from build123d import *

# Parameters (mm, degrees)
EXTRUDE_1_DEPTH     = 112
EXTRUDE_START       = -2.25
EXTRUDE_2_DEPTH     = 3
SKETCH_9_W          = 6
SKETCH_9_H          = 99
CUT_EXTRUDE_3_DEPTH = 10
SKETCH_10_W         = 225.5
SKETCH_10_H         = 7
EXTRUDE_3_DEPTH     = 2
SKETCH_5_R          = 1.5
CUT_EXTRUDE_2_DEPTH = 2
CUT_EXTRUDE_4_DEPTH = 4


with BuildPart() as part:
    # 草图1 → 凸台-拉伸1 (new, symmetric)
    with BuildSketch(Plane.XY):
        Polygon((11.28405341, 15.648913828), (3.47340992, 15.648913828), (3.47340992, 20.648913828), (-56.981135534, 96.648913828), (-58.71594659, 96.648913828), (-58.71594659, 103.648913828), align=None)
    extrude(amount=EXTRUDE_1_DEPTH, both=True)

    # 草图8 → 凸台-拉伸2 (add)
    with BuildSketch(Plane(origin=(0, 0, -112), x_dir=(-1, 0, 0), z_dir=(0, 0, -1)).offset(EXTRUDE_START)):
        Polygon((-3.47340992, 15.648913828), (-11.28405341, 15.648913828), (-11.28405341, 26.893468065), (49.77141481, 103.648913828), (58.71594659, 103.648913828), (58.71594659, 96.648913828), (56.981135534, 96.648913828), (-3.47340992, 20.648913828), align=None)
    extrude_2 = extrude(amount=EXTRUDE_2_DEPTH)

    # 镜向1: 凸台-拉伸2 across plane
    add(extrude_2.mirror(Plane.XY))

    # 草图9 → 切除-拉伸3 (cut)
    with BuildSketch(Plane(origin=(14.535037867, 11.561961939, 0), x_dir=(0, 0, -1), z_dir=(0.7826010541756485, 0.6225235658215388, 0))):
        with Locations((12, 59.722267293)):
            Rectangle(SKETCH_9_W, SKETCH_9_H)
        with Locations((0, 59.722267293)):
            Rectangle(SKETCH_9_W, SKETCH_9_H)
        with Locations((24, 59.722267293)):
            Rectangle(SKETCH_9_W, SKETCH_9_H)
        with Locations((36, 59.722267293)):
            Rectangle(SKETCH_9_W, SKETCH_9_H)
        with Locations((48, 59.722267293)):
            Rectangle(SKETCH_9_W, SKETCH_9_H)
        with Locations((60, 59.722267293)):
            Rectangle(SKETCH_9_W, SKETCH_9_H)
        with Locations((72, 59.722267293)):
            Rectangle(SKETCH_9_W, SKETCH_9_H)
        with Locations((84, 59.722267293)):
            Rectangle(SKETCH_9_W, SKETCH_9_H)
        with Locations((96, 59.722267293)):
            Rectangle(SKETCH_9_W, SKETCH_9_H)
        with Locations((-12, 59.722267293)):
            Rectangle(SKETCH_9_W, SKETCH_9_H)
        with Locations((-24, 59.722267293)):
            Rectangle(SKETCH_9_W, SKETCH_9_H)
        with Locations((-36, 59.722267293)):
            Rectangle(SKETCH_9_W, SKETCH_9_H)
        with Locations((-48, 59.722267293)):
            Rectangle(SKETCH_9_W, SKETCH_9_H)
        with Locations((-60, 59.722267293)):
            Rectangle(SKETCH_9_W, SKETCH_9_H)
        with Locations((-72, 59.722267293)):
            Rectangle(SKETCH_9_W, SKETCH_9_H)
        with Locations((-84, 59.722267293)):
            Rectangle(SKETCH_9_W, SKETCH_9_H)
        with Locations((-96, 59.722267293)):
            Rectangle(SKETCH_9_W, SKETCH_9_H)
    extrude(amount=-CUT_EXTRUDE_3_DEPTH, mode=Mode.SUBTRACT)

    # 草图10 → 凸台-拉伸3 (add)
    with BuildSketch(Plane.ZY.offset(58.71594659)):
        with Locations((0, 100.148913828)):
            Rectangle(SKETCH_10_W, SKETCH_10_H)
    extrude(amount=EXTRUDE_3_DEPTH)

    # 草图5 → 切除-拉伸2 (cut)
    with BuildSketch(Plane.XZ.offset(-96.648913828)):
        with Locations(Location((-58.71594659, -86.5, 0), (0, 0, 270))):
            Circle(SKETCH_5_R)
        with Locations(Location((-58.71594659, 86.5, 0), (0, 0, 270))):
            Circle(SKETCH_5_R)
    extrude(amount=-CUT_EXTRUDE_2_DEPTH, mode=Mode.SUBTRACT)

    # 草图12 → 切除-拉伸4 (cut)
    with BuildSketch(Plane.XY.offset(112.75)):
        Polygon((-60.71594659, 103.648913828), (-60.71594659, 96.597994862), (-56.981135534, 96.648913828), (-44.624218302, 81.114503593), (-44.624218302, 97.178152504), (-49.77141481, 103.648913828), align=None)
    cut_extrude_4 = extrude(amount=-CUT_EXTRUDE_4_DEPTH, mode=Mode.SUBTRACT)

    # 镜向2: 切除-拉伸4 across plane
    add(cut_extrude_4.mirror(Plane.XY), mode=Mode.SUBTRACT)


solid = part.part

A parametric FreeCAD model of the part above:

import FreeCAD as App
import Part
import Sketcher


def add_polygon(sketch, points):
    """Adds a closed chain of lines whose ends are joined by coincident constraints."""
    first, n = sketch.GeometryCount, len(points)
    for a, b in zip(points, points[1:] + points[:1]):
        sketch.addGeometry(Part.LineSegment(App.Vector(*a, 0), App.Vector(*b, 0)), False)
    for i in range(n):
        sketch.addConstraint(Sketcher.Constraint("Coincident", first + i, 2, first + (i + 1) % n, 1))

doc = App.newDocument("Part")
body = doc.addObject("PartDesign::Body", "Body")

# Sketch on XY plane
sketch1 = doc.addObject("Sketcher::SketchObject", "Sketch")
body.addObject(sketch1)
sketch1.AttachmentSupport = (doc.XY_Plane, [""])
sketch1.MapMode = "FlatFace"
add_polygon(sketch1, [(3.47341, 15.648914), (11.284053, 15.648914), (-58.715947, 103.648914), (-58.715947, 96.648914), (-56.981136, 96.648914), (3.47341, 20.648914)])  # lines 0-5
sketch1.addConstraint(Sketcher.Constraint("Horizontal", 0))
sketch1.addConstraint(Sketcher.Constraint("Vertical", 2))
sketch1.addConstraint(Sketcher.Constraint("Horizontal", 3))
sketch1.addConstraint(Sketcher.Constraint("Vertical", 5))
sketch1.addConstraint(Sketcher.Constraint("Parallel", 1, 4))
sketch1.addConstraint(Sketcher.Constraint("DistanceY", 2, 2, 2, 1, 7.0))
sketch1.addConstraint(Sketcher.Constraint("DistanceY", 5, 2, 5, 1, 5.0))
sketch1.addConstraint(Sketcher.Constraint("DistanceX", 1, 2, 0, 2, 70.0))
sketch1.addConstraint(Sketcher.Constraint("DistanceY", 0, 2, 1, 2, 88.0))
sketch1.addConstraint(Sketcher.Constraint("DistanceX", 3, 1, 3, 2, 1.734811))
sketch1.addConstraint(Sketcher.Constraint("DistanceX", -1, 1, 4, 2, 3.47341))
sketch1.addConstraint(Sketcher.Constraint("DistanceY", -1, 1, 0, 2, 15.648914))
pad1 = doc.addObject("PartDesign::Pad", "Pad")
body.addObject(pad1)
pad1.Profile = sketch1
pad1.Length = 224
pad1.Midplane = True

# Sketch on XY plane
sketch2 = doc.addObject("Sketcher::SketchObject", "Sketch001")
body.addObject(sketch2)
sketch2.AttachmentSupport = (doc.XY_Plane, [""])
sketch2.MapMode = "FlatFace"
sketch2.AttachmentOffset = App.Placement(App.Vector(0, 0, -109.75), App.Rotation())
add_polygon(sketch2, [(11.284053, 15.648914), (3.47341, 15.648914), (3.47341, 20.648914), (-56.981136, 96.648914), (-58.715947, 96.648914), (-58.715947, 103.648914), (-49.771415, 103.648914), (11.284053, 26.893468)])  # lines 0-7
sketch2.addConstraint(Sketcher.Constraint("Horizontal", 0))
sketch2.addConstraint(Sketcher.Constraint("Vertical", 1))
sketch2.addConstraint(Sketcher.Constraint("Horizontal", 3))
sketch2.addConstraint(Sketcher.Constraint("Vertical", 4))
sketch2.addConstraint(Sketcher.Constraint("Horizontal", 5))
sketch2.addConstraint(Sketcher.Constraint("Vertical", 7))
sketch2.addConstraint(Sketcher.Constraint("Parallel", 2, 6))
sketch2.addConstraint(Sketcher.Constraint("DistanceY", 1, 1, 1, 2, 5.0))
sketch2.addConstraint(Sketcher.Constraint("DistanceY", 4, 1, 4, 2, 7.0))
sketch2.addConstraint(Sketcher.Constraint("DistanceY", 1, 2, 2, 2, 76.0))
sketch2.addConstraint(Sketcher.Constraint("DistanceX", 3, 2, 6, 2, 70.0))
sketch2.addConstraint(Sketcher.Constraint("DistanceX", 3, 2, 3, 1, 1.734811))
sketch2.addConstraint(Sketcher.Constraint("DistanceX", 5, 1, 5, 2, 8.944532))
sketch2.addConstraint(Sketcher.Constraint("Distance", 2, 97.112059))
sketch2.addConstraint(Sketcher.Constraint("DistanceX", -1, 1, 0, 2, 3.47341))
sketch2.addConstraint(Sketcher.Constraint("DistanceY", -1, 1, 6, 2, 26.893468))
pad2 = doc.addObject("PartDesign::Pad", "Pad001")
body.addObject(pad2)
pad2.Profile = sketch2
pad2.Length = 3
pad2.Reversed = True
doc.recompute()

mirrored = doc.addObject("PartDesign::Mirrored", "Mirrored")
body.addObject(mirrored)
mirrored.Originals = [pad2]
mirrored.MirrorPlane = (doc.XY_Plane, [""])
body.Tip = mirrored

# Sketch on an angled plane
sketch3 = doc.addObject("Sketcher::SketchObject", "Sketch002")
body.addObject(sketch3)
sketch3.Placement = App.Placement(App.Vector(14.535038, 11.561962, 0), App.Rotation(App.Vector(0, 0, -1), App.Vector(-0.622523566, 0.782601054, 0), App.Vector(0.782601054, 0.622523566, 0), "ZXY"))
add_polygon(sketch3, [(9, 109.222267), (9, 10.222267), (15, 10.222267), (15, 109.222267)])  # lines 0-3
add_polygon(sketch3, [(-3, 109.222267), (-3, 10.222267), (3, 10.222267), (3, 109.222267)])  # lines 4-7
add_polygon(sketch3, [(21, 109.222267), (21, 10.222267), (27, 10.222267), (27, 109.222267)])  # lines 8-11
add_polygon(sketch3, [(33, 109.222267), (33, 10.222267), (39, 10.222267), (39, 109.222267)])  # lines 12-15
add_polygon(sketch3, [(45, 109.222267), (45, 10.222267), (51, 10.222267), (51, 109.222267)])  # lines 16-19
add_polygon(sketch3, [(57, 109.222267), (57, 10.222267), (63, 10.222267), (63, 109.222267)])  # lines 20-23
add_polygon(sketch3, [(69, 109.222267), (69, 10.222267), (75, 10.222267), (75, 109.222267)])  # lines 24-27
add_polygon(sketch3, [(81, 109.222267), (81, 10.222267), (87, 10.222267), (87, 109.222267)])  # lines 28-31
add_polygon(sketch3, [(93, 109.222267), (93, 10.222267), (99, 10.222267), (99, 109.222267)])  # lines 32-35
add_polygon(sketch3, [(-15, 109.222267), (-15, 10.222267), (-9, 10.222267), (-9, 109.222267)])  # lines 36-39
add_polygon(sketch3, [(-27, 109.222267), (-27, 10.222267), (-21, 10.222267), (-21, 109.222267)])  # lines 40-43
add_polygon(sketch3, [(-39, 109.222267), (-39, 10.222267), (-33, 10.222267), (-33, 109.222267)])  # lines 44-47
add_polygon(sketch3, [(-51, 109.222267), (-51, 10.222267), (-45, 10.222267), (-45, 109.222267)])  # lines 48-51
add_polygon(sketch3, [(-63, 109.222267), (-63, 10.222267), (-57, 10.222267), (-57, 109.222267)])  # lines 52-55
add_polygon(sketch3, [(-75, 109.222267), (-75, 10.222267), (-69, 10.222267), (-69, 109.222267)])  # lines 56-59
add_polygon(sketch3, [(-87, 109.222267), (-87, 10.222267), (-81, 10.222267), (-81, 109.222267)])  # lines 60-63
add_polygon(sketch3, [(-99, 109.222267), (-99, 10.222267), (-93, 10.222267), (-93, 109.222267)])  # lines 64-67
sketch3.addConstraint(Sketcher.Constraint("Vertical", 0))
sketch3.addConstraint(Sketcher.Constraint("Horizontal", 1))
sketch3.addConstraint(Sketcher.Constraint("Vertical", 2))
sketch3.addConstraint(Sketcher.Constraint("Horizontal", 3))
sketch3.addConstraint(Sketcher.Constraint("Vertical", 4))
sketch3.addConstraint(Sketcher.Constraint("Horizontal", 5))
sketch3.addConstraint(Sketcher.Constraint("Vertical", 6))
sketch3.addConstraint(Sketcher.Constraint("Horizontal", 7))
sketch3.addConstraint(Sketcher.Constraint("Vertical", 8))
sketch3.addConstraint(Sketcher.Constraint("Horizontal", 9))
sketch3.addConstraint(Sketcher.Constraint("Vertical", 10))
sketch3.addConstraint(Sketcher.Constraint("Horizontal", 11))
sketch3.addConstraint(Sketcher.Constraint("Vertical", 12))
sketch3.addConstraint(Sketcher.Constraint("Horizontal", 13))
sketch3.addConstraint(Sketcher.Constraint("Vertical", 14))
sketch3.addConstraint(Sketcher.Constraint("Horizontal", 15))
sketch3.addConstraint(Sketcher.Constraint("Vertical", 16))
sketch3.addConstraint(Sketcher.Constraint("Horizontal", 17))
sketch3.addConstraint(Sketcher.Constraint("Vertical", 18))
sketch3.addConstraint(Sketcher.Constraint("Horizontal", 19))
sketch3.addConstraint(Sketcher.Constraint("Vertical", 20))
sketch3.addConstraint(Sketcher.Constraint("Horizontal", 21))
sketch3.addConstraint(Sketcher.Constraint("Vertical", 22))
sketch3.addConstraint(Sketcher.Constraint("Horizontal", 23))
sketch3.addConstraint(Sketcher.Constraint("Vertical", 24))
sketch3.addConstraint(Sketcher.Constraint("Horizontal", 25))
sketch3.addConstraint(Sketcher.Constraint("Vertical", 26))
sketch3.addConstraint(Sketcher.Constraint("Horizontal", 27))
sketch3.addConstraint(Sketcher.Constraint("Vertical", 28))
sketch3.addConstraint(Sketcher.Constraint("Horizontal", 29))
sketch3.addConstraint(Sketcher.Constraint("Vertical", 30))
sketch3.addConstraint(Sketcher.Constraint("Horizontal", 31))
sketch3.addConstraint(Sketcher.Constraint("Vertical", 32))
sketch3.addConstraint(Sketcher.Constraint("Horizontal", 33))
sketch3.addConstraint(Sketcher.Constraint("Vertical", 34))
sketch3.addConstraint(Sketcher.Constraint("Horizontal", 35))
sketch3.addConstraint(Sketcher.Constraint("Vertical", 36))
sketch3.addConstraint(Sketcher.Constraint("Horizontal", 37))
sketch3.addConstraint(Sketcher.Constraint("Vertical", 38))
sketch3.addConstraint(Sketcher.Constraint("Horizontal", 39))
sketch3.addConstraint(Sketcher.Constraint("Vertical", 40))
sketch3.addConstraint(Sketcher.Constraint("Horizontal", 41))
sketch3.addConstraint(Sketcher.Constraint("Vertical", 42))
sketch3.addConstraint(Sketcher.Constraint("Horizontal", 43))
sketch3.addConstraint(Sketcher.Constraint("Vertical", 44))
sketch3.addConstraint(Sketcher.Constraint("Horizontal", 45))
sketch3.addConstraint(Sketcher.Constraint("Vertical", 46))
sketch3.addConstraint(Sketcher.Constraint("Horizontal", 47))
sketch3.addConstraint(Sketcher.Constraint("Vertical", 48))
sketch3.addConstraint(Sketcher.Constraint("Horizontal", 49))
sketch3.addConstraint(Sketcher.Constraint("Vertical", 50))
sketch3.addConstraint(Sketcher.Constraint("Horizontal", 51))
sketch3.addConstraint(Sketcher.Constraint("Vertical", 52))
sketch3.addConstraint(Sketcher.Constraint("Horizontal", 53))
sketch3.addConstraint(Sketcher.Constraint("Vertical", 54))
sketch3.addConstraint(Sketcher.Constraint("Horizontal", 55))
sketch3.addConstraint(Sketcher.Constraint("Vertical", 56))
sketch3.addConstraint(Sketcher.Constraint("Horizontal", 57))
sketch3.addConstraint(Sketcher.Constraint("Vertical", 58))
sketch3.addConstraint(Sketcher.Constraint("Horizontal", 59))
sketch3.addConstraint(Sketcher.Constraint("Vertical", 60))
sketch3.addConstraint(Sketcher.Constraint("Horizontal", 61))
sketch3.addConstraint(Sketcher.Constraint("Vertical", 62))
sketch3.addConstraint(Sketcher.Constraint("Horizontal", 63))
sketch3.addConstraint(Sketcher.Constraint("Vertical", 64))
sketch3.addConstraint(Sketcher.Constraint("Horizontal", 65))
sketch3.addConstraint(Sketcher.Constraint("Vertical", 66))
sketch3.addConstraint(Sketcher.Constraint("Horizontal", 67))
sketch3.addConstraint(Sketcher.Constraint("Symmetric", 1, 2, 36, 2, -2))
sketch3.addConstraint(Sketcher.Constraint("Symmetric", 3, 2, 38, 2, -2))
sketch3.addConstraint(Sketcher.Constraint("Symmetric", 9, 2, 40, 2, -2))
sketch3.addConstraint(Sketcher.Constraint("Symmetric", 11, 2, 42, 2, -2))
sketch3.addConstraint(Sketcher.Constraint("Symmetric", 13, 2, 44, 2, -2))
sketch3.addConstraint(Sketcher.Constraint("Symmetric", 15, 2, 46, 2, -2))
sketch3.addConstraint(Sketcher.Constraint("Symmetric", 17, 2, 48, 2, -2))
sketch3.addConstraint(Sketcher.Constraint("Symmetric", 19, 2, 50, 2, -2))
sketch3.addConstraint(Sketcher.Constraint("Symmetric", 21, 2, 52, 2, -2))
sketch3.addConstraint(Sketcher.Constraint("Symmetric", 23, 2, 54, 2, -2))
sketch3.addConstraint(Sketcher.Constraint("Symmetric", 25, 2, 56, 2, -2))
sketch3.addConstraint(Sketcher.Constraint("Symmetric", 27, 2, 58, 2, -2))
sketch3.addConstraint(Sketcher.Constraint("Symmetric", 29, 2, 60, 2, -2))
sketch3.addConstraint(Sketcher.Constraint("Symmetric", 31, 2, 62, 2, -2))
sketch3.addConstraint(Sketcher.Constraint("Symmetric", 33, 2, 64, 2, -2))
sketch3.addConstraint(Sketcher.Constraint("Symmetric", 35, 2, 66, 2, -2))
sketch3.addConstraint(Sketcher.Constraint("Horizontal", 1, 2, 4, 2))
sketch3.addConstraint(Sketcher.Constraint("Horizontal", 3, 2, 6, 2))
sketch3.addConstraint(Sketcher.Constraint("Horizontal", 5, 2, 8, 2))
sketch3.addConstraint(Sketcher.Constraint("Horizontal", 7, 2, 10, 2))
sketch3.addConstraint(Sketcher.Constraint("Horizontal", 9, 2, 12, 2))
sketch3.addConstraint(Sketcher.Constraint("Horizontal", 11, 2, 14, 2))
sketch3.addConstraint(Sketcher.Constraint("Horizontal", 13, 2, 16, 2))
sketch3.addConstraint(Sketcher.Constraint("Horizontal", 15, 2, 18, 2))
sketch3.addConstraint(Sketcher.Constraint("Horizontal", 17, 2, 20, 2))
sketch3.addConstraint(Sketcher.Constraint("Horizontal", 19, 2, 22, 2))
sketch3.addConstraint(Sketcher.Constraint("Horizontal", 21, 2, 24, 2))
sketch3.addConstraint(Sketcher.Constraint("Horizontal", 23, 2, 26, 2))
sketch3.addConstraint(Sketcher.Constraint("Horizontal", 25, 2, 28, 2))
sketch3.addConstraint(Sketcher.Constraint("Horizontal", 27, 2, 30, 2))
sketch3.addConstraint(Sketcher.Constraint("Horizontal", 29, 2, 32, 2))
sketch3.addConstraint(Sketcher.Constraint("Horizontal", 31, 2, 34, 2))
sketch3.addConstraint(Sketcher.Constraint("Equal", 3, 5))
sketch3.addConstraint(Sketcher.Constraint("Equal", 7, 9))
sketch3.addConstraint(Sketcher.Constraint("Equal", 11, 13))
sketch3.addConstraint(Sketcher.Constraint("Equal", 15, 17))
sketch3.addConstraint(Sketcher.Constraint("Equal", 19, 21))
sketch3.addConstraint(Sketcher.Constraint("Equal", 23, 25))
sketch3.addConstraint(Sketcher.Constraint("Equal", 27, 29))
sketch3.addConstraint(Sketcher.Constraint("Equal", 31, 33))
sketch3.addConstraint(Sketcher.Constraint("DistanceX", 1, 1, 1, 2, 6.0))
sketch3.addConstraint(Sketcher.Constraint("DistanceY", 0, 2, 0, 1, 99.0))
sketch3.addConstraint(Sketcher.Constraint("DistanceX", -1, 1, 0, 2, 9.0))
sketch3.addConstraint(Sketcher.Constraint("DistanceX", 4, 2, -1, 1, 3.0))
sketch3.addConstraint(Sketcher.Constraint("DistanceX", -1, 1, 8, 2, 21.0))
sketch3.addConstraint(Sketcher.Constraint("DistanceX", -1, 1, 12, 2, 33.0))
sketch3.addConstraint(Sketcher.Constraint("DistanceX", -1, 1, 16, 2, 45.0))
sketch3.addConstraint(Sketcher.Constraint("DistanceX", -1, 1, 20, 2, 57.0))
sketch3.addConstraint(Sketcher.Constraint("DistanceX", -1, 1, 24, 2, 69.0))
sketch3.addConstraint(Sketcher.Constraint("DistanceX", -1, 1, 28, 2, 81.0))
sketch3.addConstraint(Sketcher.Constraint("DistanceX", -1, 1, 32, 2, 93.0))
sketch3.addConstraint(Sketcher.Constraint("DistanceY", -1, 1, 0, 2, 10.222267))
pocket1 = doc.addObject("PartDesign::Pocket", "Pocket")
body.addObject(pocket1)
pocket1.Profile = sketch3
pocket1.Length = 10

# Sketch on YZ plane
sketch4 = doc.addObject("Sketcher::SketchObject", "Sketch003")
body.addObject(sketch4)
sketch4.AttachmentSupport = (doc.YZ_Plane, [""])
sketch4.MapMode = "FlatFace"
sketch4.AttachmentOffset = App.Placement(App.Vector(0, 0, -58.715947), App.Rotation())
add_polygon(sketch4, [(103.648914, -112.75), (96.648914, -112.75), (96.648914, 112.75), (103.648914, 112.75)])  # lines 0-3
sketch4.addConstraint(Sketcher.Constraint("Horizontal", 0))
sketch4.addConstraint(Sketcher.Constraint("Vertical", 1))
sketch4.addConstraint(Sketcher.Constraint("Horizontal", 2))
sketch4.addConstraint(Sketcher.Constraint("Vertical", 3))
sketch4.addConstraint(Sketcher.Constraint("DistanceX", 0, 2, 0, 1, 7.0))
sketch4.addConstraint(Sketcher.Constraint("DistanceY", 1, 1, 1, 2, 225.5))
sketch4.addConstraint(Sketcher.Constraint("DistanceY", 0, 2, -1, 1, 112.75))
sketch4.addConstraint(Sketcher.Constraint("DistanceX", -1, 1, 0, 2, 96.648914))
pad3 = doc.addObject("PartDesign::Pad", "Pad002")
body.addObject(pad3)
pad3.Profile = sketch4
pad3.Length = 2
pad3.Reversed = True

# Sketch on XZ plane
sketch5 = doc.addObject("Sketcher::SketchObject", "Sketch004")
body.addObject(sketch5)
sketch5.AttachmentSupport = (doc.XZ_Plane, [""])
sketch5.MapMode = "FlatFace"
sketch5.AttachmentOffset = App.Placement(App.Vector(0, 0, -96.648914), App.Rotation())
sketch5.addGeometry(Part.Circle(App.Vector(-58.715947, -86.5, 0), App.Vector(0, 0, 1), 1.5), False)
sketch5.addGeometry(Part.Circle(App.Vector(-58.715947, 86.5, 0), App.Vector(0, 0, 1), 1.5), False)
sketch5.addConstraint(Sketcher.Constraint("Equal", 0, 1))
sketch5.addConstraint(Sketcher.Constraint("Symmetric", 0, 3, 1, 3, -1))
sketch5.addConstraint(Sketcher.Constraint("Diameter", 0, 3.0))
sketch5.addConstraint(Sketcher.Constraint("DistanceY", 0, 3, 1, 3, 173.0))
sketch5.addConstraint(Sketcher.Constraint("DistanceX", 0, 3, -1, 1, 58.715947))
pocket2 = doc.addObject("PartDesign::Pocket", "Pocket001")
body.addObject(pocket2)
pocket2.Profile = sketch5
pocket2.Length = 2

# Sketch on XY plane
sketch6 = doc.addObject("Sketcher::SketchObject", "Sketch005")
body.addObject(sketch6)
sketch6.AttachmentSupport = (doc.XY_Plane, [""])
sketch6.MapMode = "FlatFace"
sketch6.AttachmentOffset = App.Placement(App.Vector(0, 0, 112.75), App.Rotation())
add_polygon(sketch6, [(-60.715947, 103.648914), (-60.715947, 96.597995), (-56.981136, 96.648914), (-44.624218, 81.114504), (-44.624218, 97.178153), (-49.771415, 103.648914)])  # lines 0-5
sketch6.addConstraint(Sketcher.Constraint("Vertical", 0))
sketch6.addConstraint(Sketcher.Constraint("Vertical", 3))
sketch6.addConstraint(Sketcher.Constraint("Horizontal", 5))
sketch6.addConstraint(Sketcher.Constraint("Parallel", 2, 4))
sketch6.addConstraint(Sketcher.Constraint("DistanceY", 1, 2, 4, 2, 7.0))
sketch6.addConstraint(Sketcher.Constraint("DistanceX", 5, 2, 5, 1, 10.944532))
sketch6.addConstraint(Sketcher.Constraint("DistanceY", 0, 2, 0, 1, 7.050919))
sketch6.addConstraint(Sketcher.Constraint("DistanceY", 3, 1, 3, 2, 16.063649))
sketch6.addConstraint(Sketcher.Constraint("Distance", 1, 3.735158))
sketch6.addConstraint(Sketcher.Constraint("Distance", 2, 19.849718))
sketch6.addConstraint(Sketcher.Constraint("DistanceX", 2, 2, -1, 1, 44.624218))
sketch6.addConstraint(Sketcher.Constraint("DistanceY", -1, 1, 0, 2, 96.597995))
pocket3 = doc.addObject("PartDesign::Pocket", "Pocket002")
body.addObject(pocket3)
pocket3.Profile = sketch6
pocket3.Length = 4
doc.recompute()

mirrored2 = doc.addObject("PartDesign::Mirrored", "Mirrored001")
body.addObject(mirrored2)
mirrored2.Originals = [pocket3]
mirrored2.MirrorPlane = (doc.XY_Plane, [""])
body.Tip = mirrored2

doc.recompute()
